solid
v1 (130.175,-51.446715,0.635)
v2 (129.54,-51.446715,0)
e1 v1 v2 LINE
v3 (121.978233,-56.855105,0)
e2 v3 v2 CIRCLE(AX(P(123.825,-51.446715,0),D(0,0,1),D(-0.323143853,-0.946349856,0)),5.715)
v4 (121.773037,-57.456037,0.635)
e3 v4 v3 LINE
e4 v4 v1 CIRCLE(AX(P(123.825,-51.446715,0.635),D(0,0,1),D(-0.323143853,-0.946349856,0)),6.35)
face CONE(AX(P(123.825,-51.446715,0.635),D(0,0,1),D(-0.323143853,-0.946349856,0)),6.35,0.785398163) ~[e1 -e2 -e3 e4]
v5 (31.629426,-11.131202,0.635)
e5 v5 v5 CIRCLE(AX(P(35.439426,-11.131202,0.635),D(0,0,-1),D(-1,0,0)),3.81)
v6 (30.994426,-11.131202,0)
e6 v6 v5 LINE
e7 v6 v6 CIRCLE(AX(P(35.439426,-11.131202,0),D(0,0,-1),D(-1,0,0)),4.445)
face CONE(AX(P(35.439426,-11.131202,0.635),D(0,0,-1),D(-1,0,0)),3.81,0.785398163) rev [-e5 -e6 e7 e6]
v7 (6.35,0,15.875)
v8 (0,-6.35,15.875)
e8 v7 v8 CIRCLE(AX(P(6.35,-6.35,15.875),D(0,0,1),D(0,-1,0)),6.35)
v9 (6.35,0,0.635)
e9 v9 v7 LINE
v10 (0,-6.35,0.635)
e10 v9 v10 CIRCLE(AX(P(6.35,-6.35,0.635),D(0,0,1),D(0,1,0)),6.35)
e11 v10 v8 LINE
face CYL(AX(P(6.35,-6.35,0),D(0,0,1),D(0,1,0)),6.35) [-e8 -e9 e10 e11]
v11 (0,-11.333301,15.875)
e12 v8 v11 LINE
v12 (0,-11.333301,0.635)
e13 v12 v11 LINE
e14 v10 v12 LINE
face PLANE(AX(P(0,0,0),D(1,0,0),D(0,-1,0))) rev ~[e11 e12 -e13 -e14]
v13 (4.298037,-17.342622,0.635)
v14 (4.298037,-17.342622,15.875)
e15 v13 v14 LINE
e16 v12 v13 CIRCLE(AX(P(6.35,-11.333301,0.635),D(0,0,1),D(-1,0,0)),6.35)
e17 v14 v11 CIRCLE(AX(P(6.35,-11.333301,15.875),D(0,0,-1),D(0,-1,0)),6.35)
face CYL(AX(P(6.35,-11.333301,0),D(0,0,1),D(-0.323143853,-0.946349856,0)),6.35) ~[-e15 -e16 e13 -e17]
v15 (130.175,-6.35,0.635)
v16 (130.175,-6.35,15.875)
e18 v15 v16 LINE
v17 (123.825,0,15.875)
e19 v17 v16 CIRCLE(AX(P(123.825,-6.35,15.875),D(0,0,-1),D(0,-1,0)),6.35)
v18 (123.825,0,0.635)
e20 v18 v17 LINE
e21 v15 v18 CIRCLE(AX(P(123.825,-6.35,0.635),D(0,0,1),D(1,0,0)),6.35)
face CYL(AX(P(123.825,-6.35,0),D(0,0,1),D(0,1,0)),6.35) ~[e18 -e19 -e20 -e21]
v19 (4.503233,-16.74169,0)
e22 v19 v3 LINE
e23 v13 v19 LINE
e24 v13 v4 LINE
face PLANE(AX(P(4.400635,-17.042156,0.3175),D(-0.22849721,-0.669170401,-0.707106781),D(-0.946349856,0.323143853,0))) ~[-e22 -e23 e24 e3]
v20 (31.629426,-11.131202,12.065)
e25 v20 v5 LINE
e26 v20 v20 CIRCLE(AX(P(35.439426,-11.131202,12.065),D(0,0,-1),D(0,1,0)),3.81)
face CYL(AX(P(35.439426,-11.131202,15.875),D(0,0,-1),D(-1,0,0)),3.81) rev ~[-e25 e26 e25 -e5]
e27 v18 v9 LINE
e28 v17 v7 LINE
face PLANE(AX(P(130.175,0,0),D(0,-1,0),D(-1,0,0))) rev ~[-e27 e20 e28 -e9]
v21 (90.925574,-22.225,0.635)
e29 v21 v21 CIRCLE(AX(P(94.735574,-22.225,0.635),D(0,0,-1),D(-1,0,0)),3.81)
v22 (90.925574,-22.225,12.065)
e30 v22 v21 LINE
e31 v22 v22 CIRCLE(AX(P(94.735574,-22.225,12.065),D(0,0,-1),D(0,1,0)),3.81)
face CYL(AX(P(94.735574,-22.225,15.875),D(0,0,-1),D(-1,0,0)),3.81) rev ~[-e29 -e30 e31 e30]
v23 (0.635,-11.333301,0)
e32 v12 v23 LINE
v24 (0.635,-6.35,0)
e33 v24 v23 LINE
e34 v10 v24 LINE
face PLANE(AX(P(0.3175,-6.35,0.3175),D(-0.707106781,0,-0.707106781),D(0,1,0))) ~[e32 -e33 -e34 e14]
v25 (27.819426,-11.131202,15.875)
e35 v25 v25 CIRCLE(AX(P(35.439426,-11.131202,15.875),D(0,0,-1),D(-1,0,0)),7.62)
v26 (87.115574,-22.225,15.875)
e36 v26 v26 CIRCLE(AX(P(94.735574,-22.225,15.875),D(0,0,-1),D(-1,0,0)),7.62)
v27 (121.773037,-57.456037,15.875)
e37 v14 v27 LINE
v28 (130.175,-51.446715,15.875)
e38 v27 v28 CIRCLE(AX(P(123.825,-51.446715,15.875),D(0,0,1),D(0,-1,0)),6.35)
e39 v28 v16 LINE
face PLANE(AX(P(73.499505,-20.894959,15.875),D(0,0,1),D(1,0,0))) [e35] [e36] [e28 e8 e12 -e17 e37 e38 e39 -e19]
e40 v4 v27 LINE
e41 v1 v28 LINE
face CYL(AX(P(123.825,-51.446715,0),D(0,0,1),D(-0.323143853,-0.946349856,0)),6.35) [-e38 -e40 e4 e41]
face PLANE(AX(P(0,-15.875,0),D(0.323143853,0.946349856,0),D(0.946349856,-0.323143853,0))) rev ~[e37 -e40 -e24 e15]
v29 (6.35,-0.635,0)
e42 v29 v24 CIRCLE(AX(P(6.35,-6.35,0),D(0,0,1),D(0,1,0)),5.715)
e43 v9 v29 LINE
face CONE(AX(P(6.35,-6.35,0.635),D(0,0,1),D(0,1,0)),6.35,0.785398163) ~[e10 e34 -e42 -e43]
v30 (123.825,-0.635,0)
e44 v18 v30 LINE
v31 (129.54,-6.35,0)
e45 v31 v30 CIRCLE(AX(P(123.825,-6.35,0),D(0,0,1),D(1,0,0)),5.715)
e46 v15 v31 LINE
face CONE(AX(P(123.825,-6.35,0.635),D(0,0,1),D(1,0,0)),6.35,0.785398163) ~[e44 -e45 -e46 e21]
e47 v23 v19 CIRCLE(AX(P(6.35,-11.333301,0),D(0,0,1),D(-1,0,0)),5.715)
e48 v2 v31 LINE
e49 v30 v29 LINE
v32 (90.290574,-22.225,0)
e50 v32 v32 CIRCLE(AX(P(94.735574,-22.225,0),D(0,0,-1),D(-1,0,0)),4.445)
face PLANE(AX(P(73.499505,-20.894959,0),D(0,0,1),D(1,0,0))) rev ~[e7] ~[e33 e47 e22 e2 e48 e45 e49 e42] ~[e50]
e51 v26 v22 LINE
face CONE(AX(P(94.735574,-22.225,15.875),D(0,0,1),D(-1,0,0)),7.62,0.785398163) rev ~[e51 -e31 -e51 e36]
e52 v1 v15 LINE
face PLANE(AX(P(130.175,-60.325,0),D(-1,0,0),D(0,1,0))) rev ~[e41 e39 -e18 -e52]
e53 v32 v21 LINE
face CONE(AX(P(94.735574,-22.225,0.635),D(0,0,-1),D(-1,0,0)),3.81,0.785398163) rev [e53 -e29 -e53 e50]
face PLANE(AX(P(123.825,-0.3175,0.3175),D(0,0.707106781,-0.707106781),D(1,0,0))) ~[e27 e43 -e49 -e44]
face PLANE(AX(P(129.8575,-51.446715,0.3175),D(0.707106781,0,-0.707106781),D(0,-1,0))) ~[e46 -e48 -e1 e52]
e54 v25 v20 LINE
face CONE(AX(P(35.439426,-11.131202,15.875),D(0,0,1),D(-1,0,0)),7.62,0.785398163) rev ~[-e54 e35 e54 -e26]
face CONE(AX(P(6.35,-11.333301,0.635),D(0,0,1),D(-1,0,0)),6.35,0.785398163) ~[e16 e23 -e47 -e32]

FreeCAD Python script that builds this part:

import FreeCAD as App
import Part
import Sketcher
Q = App.Units.Quantity


def edges_at(feature, points):
    """Names of the edges that pass closest to the given points."""
    edges = feature.Shape.Edges
    near = lambda p: min(range(len(edges)), key=lambda i: edges[i].distToShape(Part.Vertex(*p))[0])
    return sorted({f"Edge{near(p) + 1}" for p in points})


def add_polygon(sketch, points):
    """Adds a closed chain of lines whose ends are joined by coincident constraints."""
    first, n = sketch.GeometryCount, len(points)
    for a, b in zip(points, points[1:] + points[:1]):
        sketch.addGeometry(Part.LineSegment(App.Vector(*a, 0), App.Vector(*b, 0)), False)
    for i in range(n):
        sketch.addConstraint(Sketcher.Constraint("Coincident", first + i, 2, first + (i + 1) % n, 1))

doc = App.newDocument("Part")
body = doc.addObject("PartDesign::Body", "Body")

# Sketch on XY plane
sketch1 = doc.addObject("Sketcher::SketchObject", "Sketch")
body.addObject(sketch1)
sketch1.AttachmentSupport = (doc.XY_Plane, [""])
sketch1.MapMode = "FlatFace"
add_polygon(sketch1, [(130.175, 0), (0, 0), (0, -15.875), (130.175, -60.325)])  # lines 0-3
sketch1.addConstraint(Sketcher.Constraint("Horizontal", 0))
sketch1.addConstraint(Sketcher.Constraint("Vertical", 1))
sketch1.addConstraint(Sketcher.Constraint("Vertical", 3))
sketch1.addConstraint(Sketcher.Constraint("Coincident", 0, 2, -1, 1))
sketch1.addConstraint(Sketcher.Constraint("DistanceX", 0, 2, 0, 1, Q("5.125 in")))
sketch1.addConstraint(Sketcher.Constraint("DistanceY", 1, 2, 1, 1, Q("0.625 in")))
sketch1.addConstraint(Sketcher.Constraint("DistanceY", 3, 1, 3, 2, Q("2.375 in")))
pad1 = doc.addObject("PartDesign::Pad", "Pad")
body.addObject(pad1)
pad1.Profile = sketch1
pad1.Length = Q("0.625 in")

# Sketch on XY plane
sketch2 = doc.addObject("Sketcher::SketchObject", "Sketch001")
body.addObject(sketch2)
sketch2.AttachmentSupport = (doc.XY_Plane, [""])
sketch2.MapMode = "FlatFace"
sketch2.AttachmentOffset = App.Placement(App.Vector(0, 0, 0.625 * 25.4), App.Rotation())
sketch2.addGeometry(Part.Circle(App.Vector(35.439426, -11.131202, 0), App.Vector(0, 0, 1), 3.81), False)
sketch2.addGeometry(Part.Circle(App.Vector(94.735574, -22.225, 0), App.Vector(0, 0, 1), 3.81), False)
sketch2.addConstraint(Sketcher.Constraint("Equal", 0, 1))
sketch2.addConstraint(Sketcher.Constraint("Diameter", 0, Q("0.3 in")))
sketch2.addConstraint(Sketcher.Constraint("DistanceY", 1, 3, -1, 1, Q("0.875 in")))
sketch2.addConstraint(Sketcher.Constraint("DistanceY", 1, 3, 0, 3, 11.093798))
sketch2.addConstraint(Sketcher.Constraint("DistanceX", 0, 3, 1, 3, 59.296148))
sketch2.addConstraint(Sketcher.Constraint("DistanceX", -1, 1, 0, 3, 35.439426))
doc.recompute()
hole = doc.addObject("PartDesign::Hole", "Hole")
body.addObject(hole)
hole.Profile = sketch2
hole.ThreadType = "None"
hole.Diameter = Q("0.3 in")
hole.DepthType = "ThroughAll"
hole.HoleCutType = "Countersink"
hole.HoleCutDiameter = Q("0.6 in")
hole.HoleCutCountersinkAngle = 90
doc.recompute()

fillet = doc.addObject("PartDesign::Fillet", "Fillet")
body.addObject(fillet)
fillet.Base = (hole, edges_at(hole, [
    (0, -15.875, 7.938),
    (0, 0, 7.938),
    (130.175, -60.325, 7.938),
    (130.175, 0, 7.938),
]))
fillet.Radius = Q("0.25 in")
doc.recompute()

chamfer = doc.addObject("PartDesign::Chamfer", "Chamfer")
body.addObject(chamfer)
chamfer.Base = (fillet, edges_at(fillet, [
    (65.088, 0, 0),
    (128.315, -1.86, 0),
    (1.86, -1.86, 0),
    (130.175, -28.898, 0),
    (0, -8.842, 0),
    (127.519, -56.612, 0),
    (1.185, -15.027, 0),
    (63.036, -37.399, 0),
    (98.546, -22.225, 0),
    (39.249, -11.131, 0),
]))
chamfer.Size = Q("0.025 in")

doc.recompute()
